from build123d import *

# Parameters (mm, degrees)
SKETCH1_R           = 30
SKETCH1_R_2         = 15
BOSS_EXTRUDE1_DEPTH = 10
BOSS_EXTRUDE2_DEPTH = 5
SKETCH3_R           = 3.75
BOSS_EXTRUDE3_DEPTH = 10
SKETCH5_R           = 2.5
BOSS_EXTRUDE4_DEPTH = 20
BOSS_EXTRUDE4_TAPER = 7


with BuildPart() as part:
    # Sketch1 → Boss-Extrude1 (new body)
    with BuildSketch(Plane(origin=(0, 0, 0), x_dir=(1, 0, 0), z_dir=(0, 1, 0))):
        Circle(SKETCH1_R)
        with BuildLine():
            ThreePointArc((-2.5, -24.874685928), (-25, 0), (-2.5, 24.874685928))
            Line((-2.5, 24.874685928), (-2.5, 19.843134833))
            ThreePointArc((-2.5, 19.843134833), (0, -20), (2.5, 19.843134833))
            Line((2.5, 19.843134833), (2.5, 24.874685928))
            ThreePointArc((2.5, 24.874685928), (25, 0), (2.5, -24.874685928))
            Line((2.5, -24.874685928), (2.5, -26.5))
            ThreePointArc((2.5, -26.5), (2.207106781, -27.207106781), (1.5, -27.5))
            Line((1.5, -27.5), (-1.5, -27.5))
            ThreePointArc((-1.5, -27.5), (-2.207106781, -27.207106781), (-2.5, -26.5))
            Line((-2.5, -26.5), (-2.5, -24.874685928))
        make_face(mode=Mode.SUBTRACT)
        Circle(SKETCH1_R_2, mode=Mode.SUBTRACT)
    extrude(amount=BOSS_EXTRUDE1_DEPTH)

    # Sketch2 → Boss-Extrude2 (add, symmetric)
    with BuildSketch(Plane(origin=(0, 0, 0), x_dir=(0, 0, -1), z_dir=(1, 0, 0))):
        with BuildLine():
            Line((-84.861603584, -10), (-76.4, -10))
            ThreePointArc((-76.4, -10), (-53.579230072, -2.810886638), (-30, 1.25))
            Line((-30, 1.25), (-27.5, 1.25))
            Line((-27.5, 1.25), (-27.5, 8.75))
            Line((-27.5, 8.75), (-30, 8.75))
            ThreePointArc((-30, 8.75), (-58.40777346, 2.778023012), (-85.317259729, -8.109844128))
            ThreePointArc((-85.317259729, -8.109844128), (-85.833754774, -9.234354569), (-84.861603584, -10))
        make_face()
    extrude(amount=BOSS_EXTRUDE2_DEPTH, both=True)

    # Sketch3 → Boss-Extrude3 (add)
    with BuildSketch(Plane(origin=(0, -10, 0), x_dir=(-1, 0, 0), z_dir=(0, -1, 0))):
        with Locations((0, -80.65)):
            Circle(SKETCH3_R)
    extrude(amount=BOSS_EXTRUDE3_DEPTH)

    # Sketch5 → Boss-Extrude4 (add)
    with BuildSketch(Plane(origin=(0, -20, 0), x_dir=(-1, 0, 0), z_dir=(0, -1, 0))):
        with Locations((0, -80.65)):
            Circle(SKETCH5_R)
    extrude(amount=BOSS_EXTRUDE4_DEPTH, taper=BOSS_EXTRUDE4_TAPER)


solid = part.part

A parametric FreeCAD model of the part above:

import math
import FreeCAD as App
import Part
import Sketcher
from FreeCAD import Vector

doc = App.newDocument("Part")
body = doc.addObject("PartDesign::Body", "Body")

sketch1 = doc.addObject("Sketcher::SketchObject", "Sketch")
body.addObject(sketch1)
sketch1.AttachmentSupport = (doc.XZ_Plane, [""])
sketch1.MapMode = "FlatFace"
sketch1.addGeometry(Part.Circle(Vector(0, 0, 0), Vector(0, 0, 1), 30), False)
sketch1.addGeometry(Part.LineSegment(Vector(-2.5, 26.5, 0), Vector(-2.5, 24.9, 0)), False)
sketch1.addGeometry(Part.ArcOfCircle(Part.Circle(Vector(0, 0, 0), Vector(0, 0, 1), 25), math.radians(96), math.radians(264)), False)
sketch1.addGeometry(Part.LineSegment(Vector(-2.5, -24.9, 0), Vector(-2.5, -19.8, 0)), False)
sketch1.addGeometry(Part.ArcOfCircle(Part.Circle(Vector(0, 0, 0), Vector(0, 0, 1), 20), math.radians(-83), math.radians(263)), False)
sketch1.addGeometry(Part.LineSegment(Vector(2.5, -19.8, 0), Vector(2.5, -24.9, 0)), False)
sketch1.addGeometry(Part.ArcOfCircle(Part.Circle(Vector(0, 0, 0), Vector(0, 0, 1), 25), math.radians(-84), math.radians(84)), False)
sketch1.addGeometry(Part.LineSegment(Vector(2.5, 24.9, 0), Vector(2.5, 26.5, 0)), False)
sketch1.addGeometry(Part.ArcOfCircle(Part.Circle(Vector(1.5, 26.5, 0), Vector(0, 0, 1), 1), math.radians(0), math.radians(90)), False)
sketch1.addGeometry(Part.LineSegment(Vector(1.5, 27.5, 0), Vector(-1.5, 27.5, 0)), False)
sketch1.addGeometry(Part.ArcOfCircle(Part.Circle(Vector(-1.5, 26.5, 0), Vector(0, 0, 1), 1), math.radians(90), math.radians(180)), False)
sketch1.addGeometry(Part.Circle(Vector(0, 0, 0), Vector(0, 0, 1), 15), False)
sketch1.addConstraint(Sketcher.Constraint("Coincident", 1, 2, 2, 1))
sketch1.addConstraint(Sketcher.Constraint("Coincident", 2, 2, 3, 1))
sketch1.addConstraint(Sketcher.Constraint("Coincident", 3, 2, 4, 2))
sketch1.addConstraint(Sketcher.Constraint("Coincident", 4, 1, 5, 1))
sketch1.addConstraint(Sketcher.Constraint("Coincident", 5, 2, 6, 1))
sketch1.addConstraint(Sketcher.Constraint("Coincident", 6, 2, 7, 1))
sketch1.addConstraint(Sketcher.Constraint("Tangent", 7, 2, 8, 1))
sketch1.addConstraint(Sketcher.Constraint("Tangent", 8, 2, 9, 1))
sketch1.addConstraint(Sketcher.Constraint("Tangent", 9, 2, 10, 1))
sketch1.addConstraint(Sketcher.Constraint("Tangent", 10, 2, 1, 1))
sketch1.addConstraint(Sketcher.Constraint("Vertical", 1))
sketch1.addConstraint(Sketcher.Constraint("Vertical", 3))
sketch1.addConstraint(Sketcher.Constraint("Vertical", 5))
sketch1.addConstraint(Sketcher.Constraint("Vertical", 7))
sketch1.addConstraint(Sketcher.Constraint("Horizontal", 9))
sketch1.addConstraint(Sketcher.Constraint("Coincident", 0, 3, -1, 1))
sketch1.addConstraint(Sketcher.Constraint("Coincident", 2, 3, -1, 1))
sketch1.addConstraint(Sketcher.Constraint("Coincident", 4, 3, -1, 1))
sketch1.addConstraint(Sketcher.Constraint("Coincident", 6, 3, -1, 1))
sketch1.addConstraint(Sketcher.Constraint("Coincident", 11, 3, -1, 1))
sketch1.addConstraint(Sketcher.Constraint("Equal", 2, 6))
sketch1.addConstraint(Sketcher.Constraint("Equal", 8, 10))
sketch1.addConstraint(Sketcher.Constraint("Horizontal", 3, 2, 4, 1))
sketch1.addConstraint(Sketcher.Constraint("Horizontal", 1, 2, 6, 2))
sketch1.addConstraint(Sketcher.Constraint("Vertical", 1, 2, 2, 2))
sketch1.addConstraint(Sketcher.Constraint("Diameter", 0, 60.0))
sketch1.addConstraint(Sketcher.Constraint("Diameter", 11, 30.0))
sketch1.addConstraint(Sketcher.Constraint("Radius", 2, 25.0))
sketch1.addConstraint(Sketcher.Constraint("Radius", 4, 20.0))
sketch1.addConstraint(Sketcher.Constraint("Radius", 8, 1.0))
sketch1.addConstraint(Sketcher.Constraint("DistanceX", 9, 2, 9, 1, 3.0))
sketch1.addConstraint(Sketcher.Constraint("DistanceY", -1, 1, 8, 3, 26.5))
pad1 = doc.addObject("PartDesign::Pad", "Pad")
body.addObject(pad1)
pad1.Profile = sketch1
pad1.Length = 10
pad1.Reversed = True

sketch2 = doc.addObject("Sketcher::SketchObject", "Sketch001")
body.addObject(sketch2)
sketch2.AttachmentSupport = (doc.YZ_Plane, [""])
sketch2.MapMode = "FlatFace"
sketch2.addGeometry(Part.LineSegment(Vector(-10, 84.9, 0), Vector(-10, 76.4, 0)), False)
sketch2.addGeometry(Part.ArcOfCircle(Part.Circle(Vector(-175.7, 11.7, 0), Vector(0, 0, 1), 177.8), math.radians(5.91), math.radians(21.34)), False)
sketch2.addGeometry(Part.LineSegment(Vector(1.2, 30, 0), Vector(1.2, 27.5, 0)), False)
sketch2.addGeometry(Part.LineSegment(Vector(1.2, 27.5, 0), Vector(8.8, 27.5, 0)), False)
sketch2.addGeometry(Part.LineSegment(Vector(8.8, 27.5, 0), Vector(8.8, 30, 0)), False)
sketch2.addGeometry(Part.ArcOfCircle(Part.Circle(Vector(-154.1, 10.6, 0), Vector(0, 0, 1), 164), math.radians(7), math.radians(27)), False)
sketch2.addGeometry(Part.ArcOfCircle(Part.Circle(Vector(-9, 84.9, 0), Vector(0, 0, 1), 1), math.radians(27), math.radians(180)), False)
sketch2.addConstraint(Sketcher.Constraint("Coincident", 0, 2, 1, 2))
sketch2.addConstraint(Sketcher.Constraint("Coincident", 1, 1, 2, 1))
sketch2.addConstraint(Sketcher.Constraint("Coincident", 2, 2, 3, 1))
sketch2.addConstraint(Sketcher.Constraint("Coincident", 3, 2, 4, 1))
sketch2.addConstraint(Sketcher.Constraint("Coincident", 4, 2, 5, 1))
sketch2.addConstraint(Sketcher.Constraint("Tangent", 5, 2, 6, 1))
sketch2.addConstraint(Sketcher.Constraint("Tangent", 6, 2, 0, 1))
sketch2.addConstraint(Sketcher.Constraint("Vertical", 0))
sketch2.addConstraint(Sketcher.Constraint("Vertical", 2))
sketch2.addConstraint(Sketcher.Constraint("Horizontal", 3))
sketch2.addConstraint(Sketcher.Constraint("Vertical", 4))
sketch2.addConstraint(Sketcher.Constraint("Horizontal", 1, 1, 4, 2))
sketch2.addConstraint(Sketcher.Constraint("Radius", 6, 1.0))
sketch2.addConstraint(Sketcher.Constraint("DistanceX", 3, 1, 3, 2, 7.5))
sketch2.addConstraint(Sketcher.Constraint("DistanceY", 2, 2, 2, 1, 2.5))
sketch2.addConstraint(Sketcher.Constraint("DistanceX", 6, 3, -1, 1, 9.0))
sketch2.addConstraint(Sketcher.Constraint("DistanceY", -1, 1, 1, 1, 30.0))
sketch2.addConstraint(Sketcher.Constraint("DistanceY", -1, 1, 0, 2, 76.4))
sketch2.addConstraint(Sketcher.Constraint("DistanceX", -1, 1, 1, 1, 1.25))
sketch2.addConstraint(Sketcher.Constraint("Radius", 1, 177.848917))
sketch2.addConstraint(Sketcher.Constraint("Radius", 5, 163.970006))
sketch2.addConstraint(Sketcher.Constraint("DistanceY", 0, 2, 0, 1, 8.461604))
pad2 = doc.addObject("PartDesign::Pad", "Pad001")
body.addObject(pad2)
pad2.Profile = sketch2
pad2.Length = 10
pad2.Midplane = True

sketch3 = doc.addObject("Sketcher::SketchObject", "Sketch002")
body.addObject(sketch3)
sketch3.AttachmentSupport = (doc.XZ_Plane, [""])
sketch3.MapMode = "FlatFace"
sketch3.AttachmentOffset = App.Placement(Vector(0, 0, 10), App.Rotation())
sketch3.addGeometry(Part.Circle(Vector(0, 80.7, 0), Vector(0, 0, 1), 3.8), False)
sketch3.addConstraint(Sketcher.Constraint("PointOnObject", 0, 3, -2))
sketch3.addConstraint(Sketcher.Constraint("Diameter", 0, 7.5))
sketch3.addConstraint(Sketcher.Constraint("DistanceY", -1, 1, 0, 3, 80.65))
pad3 = doc.addObject("PartDesign::Pad", "Pad002")
body.addObject(pad3)
pad3.Profile = sketch3
pad3.Length = 10

sketch4 = doc.addObject("Sketcher::SketchObject", "Sketch003")
body.addObject(sketch4)
sketch4.AttachmentSupport = (doc.XZ_Plane, [""])
sketch4.MapMode = "FlatFace"
sketch4.AttachmentOffset = App.Placement(Vector(0, 0, 20), App.Rotation())
sketch4.addGeometry(Part.Circle(Vector(0, 80.7, 0), Vector(0, 0, 1), 2.5), False)
sketch4.addConstraint(Sketcher.Constraint("PointOnObject", 0, 3, -2))
sketch4.addConstraint(Sketcher.Constraint("Diameter", 0, 5.0))
sketch4.addConstraint(Sketcher.Constraint("DistanceY", -1, 1, 0, 3, 80.65))
pad4 = doc.addObject("PartDesign::Pad", "Pad003")
body.addObject(pad4)
pad4.Profile = sketch4
pad4.Length = 20
pad4.TaperAngle = -7

doc.recompute()
